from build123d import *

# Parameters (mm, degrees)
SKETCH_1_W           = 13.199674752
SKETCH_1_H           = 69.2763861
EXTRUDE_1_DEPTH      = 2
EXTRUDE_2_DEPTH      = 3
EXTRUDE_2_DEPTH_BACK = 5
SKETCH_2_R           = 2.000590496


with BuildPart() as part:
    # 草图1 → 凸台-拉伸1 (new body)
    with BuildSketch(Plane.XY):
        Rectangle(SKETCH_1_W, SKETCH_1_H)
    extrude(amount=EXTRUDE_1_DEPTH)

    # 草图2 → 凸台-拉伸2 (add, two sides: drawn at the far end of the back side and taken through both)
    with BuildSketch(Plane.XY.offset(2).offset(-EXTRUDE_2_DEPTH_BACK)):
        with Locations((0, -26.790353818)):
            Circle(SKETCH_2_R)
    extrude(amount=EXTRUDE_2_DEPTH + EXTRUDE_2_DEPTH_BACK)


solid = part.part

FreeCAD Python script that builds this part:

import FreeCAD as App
import Part
import Sketcher

V = App.Vector
Q = App.Units.Quantity

doc = App.newDocument("Part")
body = doc.addObject("PartDesign::Body", "Body")

# Sketch on XY plane
sketch1 = body.newObject("Sketcher::SketchObject", "Sketch")
sketch1.AttachmentSupport = (doc.getObject("XY_Plane"), [""])
sketch1.MapMode = "FlatFace"
sketch1.addGeometry([
    Part.LineSegment(V(-7, 35, 0), V(-7, -35, 0)),
    Part.LineSegment(V(-7, -35, 0), V(7, -35, 0)),
    Part.LineSegment(V(7, -35, 0), V(7, 35, 0)),
    Part.LineSegment(V(7, 35, 0), V(-7, 35, 0)),
], False)
sketch1.addConstraint([
    Sketcher.Constraint("Coincident", 0, 2, 1, 1),
    Sketcher.Constraint("Coincident", 1, 2, 2, 1),
    Sketcher.Constraint("Coincident", 2, 2, 3, 1),
    Sketcher.Constraint("Coincident", 3, 2, 0, 1),
    Sketcher.Constraint("Vertical", 0),
    Sketcher.Constraint("Horizontal", 1),
    Sketcher.Constraint("Vertical", 2),
    Sketcher.Constraint("Horizontal", 3),
    Sketcher.Constraint("Symmetric", 0, 2, 2, 2, -1, 1),
    Sketcher.Constraint("DistanceX", 1, 1, 1, 2, Q("13.199675 mm")),
    Sketcher.Constraint("DistanceY", 0, 2, 0, 1, Q("69.276386 mm")),
])
pad1 = body.newObject("PartDesign::Pad", "Pad")
pad1.Profile = sketch1
pad1.Length = 2

# Sketch on XY plane
sketch2 = body.newObject("Sketcher::SketchObject", "Sketch001")
sketch2.AttachmentSupport = (doc.getObject("XY_Plane"), [""])
sketch2.MapMode = "FlatFace"
sketch2.AttachmentOffset = App.Placement(V(0, 0, 2), App.Rotation())
sketch2.addGeometry(Part.Circle(V(0, -26.8, 0), V(0, 0, 1), 2), False)
sketch2.addConstraint([
    Sketcher.Constraint("PointOnObject", 0, 3, -2),
    Sketcher.Constraint("Diameter", 0, Q("4.001181 mm")),
    Sketcher.Constraint("DistanceY", 0, 3, -1, 1, Q("26.790354 mm")),
])
pad2 = body.newObject("PartDesign::Pad", "Pad001")
pad2.Profile = sketch2
pad2.Type = "TwoLengths"
pad2.Length = 3
pad2.Length2 = 5

doc.recompute()
